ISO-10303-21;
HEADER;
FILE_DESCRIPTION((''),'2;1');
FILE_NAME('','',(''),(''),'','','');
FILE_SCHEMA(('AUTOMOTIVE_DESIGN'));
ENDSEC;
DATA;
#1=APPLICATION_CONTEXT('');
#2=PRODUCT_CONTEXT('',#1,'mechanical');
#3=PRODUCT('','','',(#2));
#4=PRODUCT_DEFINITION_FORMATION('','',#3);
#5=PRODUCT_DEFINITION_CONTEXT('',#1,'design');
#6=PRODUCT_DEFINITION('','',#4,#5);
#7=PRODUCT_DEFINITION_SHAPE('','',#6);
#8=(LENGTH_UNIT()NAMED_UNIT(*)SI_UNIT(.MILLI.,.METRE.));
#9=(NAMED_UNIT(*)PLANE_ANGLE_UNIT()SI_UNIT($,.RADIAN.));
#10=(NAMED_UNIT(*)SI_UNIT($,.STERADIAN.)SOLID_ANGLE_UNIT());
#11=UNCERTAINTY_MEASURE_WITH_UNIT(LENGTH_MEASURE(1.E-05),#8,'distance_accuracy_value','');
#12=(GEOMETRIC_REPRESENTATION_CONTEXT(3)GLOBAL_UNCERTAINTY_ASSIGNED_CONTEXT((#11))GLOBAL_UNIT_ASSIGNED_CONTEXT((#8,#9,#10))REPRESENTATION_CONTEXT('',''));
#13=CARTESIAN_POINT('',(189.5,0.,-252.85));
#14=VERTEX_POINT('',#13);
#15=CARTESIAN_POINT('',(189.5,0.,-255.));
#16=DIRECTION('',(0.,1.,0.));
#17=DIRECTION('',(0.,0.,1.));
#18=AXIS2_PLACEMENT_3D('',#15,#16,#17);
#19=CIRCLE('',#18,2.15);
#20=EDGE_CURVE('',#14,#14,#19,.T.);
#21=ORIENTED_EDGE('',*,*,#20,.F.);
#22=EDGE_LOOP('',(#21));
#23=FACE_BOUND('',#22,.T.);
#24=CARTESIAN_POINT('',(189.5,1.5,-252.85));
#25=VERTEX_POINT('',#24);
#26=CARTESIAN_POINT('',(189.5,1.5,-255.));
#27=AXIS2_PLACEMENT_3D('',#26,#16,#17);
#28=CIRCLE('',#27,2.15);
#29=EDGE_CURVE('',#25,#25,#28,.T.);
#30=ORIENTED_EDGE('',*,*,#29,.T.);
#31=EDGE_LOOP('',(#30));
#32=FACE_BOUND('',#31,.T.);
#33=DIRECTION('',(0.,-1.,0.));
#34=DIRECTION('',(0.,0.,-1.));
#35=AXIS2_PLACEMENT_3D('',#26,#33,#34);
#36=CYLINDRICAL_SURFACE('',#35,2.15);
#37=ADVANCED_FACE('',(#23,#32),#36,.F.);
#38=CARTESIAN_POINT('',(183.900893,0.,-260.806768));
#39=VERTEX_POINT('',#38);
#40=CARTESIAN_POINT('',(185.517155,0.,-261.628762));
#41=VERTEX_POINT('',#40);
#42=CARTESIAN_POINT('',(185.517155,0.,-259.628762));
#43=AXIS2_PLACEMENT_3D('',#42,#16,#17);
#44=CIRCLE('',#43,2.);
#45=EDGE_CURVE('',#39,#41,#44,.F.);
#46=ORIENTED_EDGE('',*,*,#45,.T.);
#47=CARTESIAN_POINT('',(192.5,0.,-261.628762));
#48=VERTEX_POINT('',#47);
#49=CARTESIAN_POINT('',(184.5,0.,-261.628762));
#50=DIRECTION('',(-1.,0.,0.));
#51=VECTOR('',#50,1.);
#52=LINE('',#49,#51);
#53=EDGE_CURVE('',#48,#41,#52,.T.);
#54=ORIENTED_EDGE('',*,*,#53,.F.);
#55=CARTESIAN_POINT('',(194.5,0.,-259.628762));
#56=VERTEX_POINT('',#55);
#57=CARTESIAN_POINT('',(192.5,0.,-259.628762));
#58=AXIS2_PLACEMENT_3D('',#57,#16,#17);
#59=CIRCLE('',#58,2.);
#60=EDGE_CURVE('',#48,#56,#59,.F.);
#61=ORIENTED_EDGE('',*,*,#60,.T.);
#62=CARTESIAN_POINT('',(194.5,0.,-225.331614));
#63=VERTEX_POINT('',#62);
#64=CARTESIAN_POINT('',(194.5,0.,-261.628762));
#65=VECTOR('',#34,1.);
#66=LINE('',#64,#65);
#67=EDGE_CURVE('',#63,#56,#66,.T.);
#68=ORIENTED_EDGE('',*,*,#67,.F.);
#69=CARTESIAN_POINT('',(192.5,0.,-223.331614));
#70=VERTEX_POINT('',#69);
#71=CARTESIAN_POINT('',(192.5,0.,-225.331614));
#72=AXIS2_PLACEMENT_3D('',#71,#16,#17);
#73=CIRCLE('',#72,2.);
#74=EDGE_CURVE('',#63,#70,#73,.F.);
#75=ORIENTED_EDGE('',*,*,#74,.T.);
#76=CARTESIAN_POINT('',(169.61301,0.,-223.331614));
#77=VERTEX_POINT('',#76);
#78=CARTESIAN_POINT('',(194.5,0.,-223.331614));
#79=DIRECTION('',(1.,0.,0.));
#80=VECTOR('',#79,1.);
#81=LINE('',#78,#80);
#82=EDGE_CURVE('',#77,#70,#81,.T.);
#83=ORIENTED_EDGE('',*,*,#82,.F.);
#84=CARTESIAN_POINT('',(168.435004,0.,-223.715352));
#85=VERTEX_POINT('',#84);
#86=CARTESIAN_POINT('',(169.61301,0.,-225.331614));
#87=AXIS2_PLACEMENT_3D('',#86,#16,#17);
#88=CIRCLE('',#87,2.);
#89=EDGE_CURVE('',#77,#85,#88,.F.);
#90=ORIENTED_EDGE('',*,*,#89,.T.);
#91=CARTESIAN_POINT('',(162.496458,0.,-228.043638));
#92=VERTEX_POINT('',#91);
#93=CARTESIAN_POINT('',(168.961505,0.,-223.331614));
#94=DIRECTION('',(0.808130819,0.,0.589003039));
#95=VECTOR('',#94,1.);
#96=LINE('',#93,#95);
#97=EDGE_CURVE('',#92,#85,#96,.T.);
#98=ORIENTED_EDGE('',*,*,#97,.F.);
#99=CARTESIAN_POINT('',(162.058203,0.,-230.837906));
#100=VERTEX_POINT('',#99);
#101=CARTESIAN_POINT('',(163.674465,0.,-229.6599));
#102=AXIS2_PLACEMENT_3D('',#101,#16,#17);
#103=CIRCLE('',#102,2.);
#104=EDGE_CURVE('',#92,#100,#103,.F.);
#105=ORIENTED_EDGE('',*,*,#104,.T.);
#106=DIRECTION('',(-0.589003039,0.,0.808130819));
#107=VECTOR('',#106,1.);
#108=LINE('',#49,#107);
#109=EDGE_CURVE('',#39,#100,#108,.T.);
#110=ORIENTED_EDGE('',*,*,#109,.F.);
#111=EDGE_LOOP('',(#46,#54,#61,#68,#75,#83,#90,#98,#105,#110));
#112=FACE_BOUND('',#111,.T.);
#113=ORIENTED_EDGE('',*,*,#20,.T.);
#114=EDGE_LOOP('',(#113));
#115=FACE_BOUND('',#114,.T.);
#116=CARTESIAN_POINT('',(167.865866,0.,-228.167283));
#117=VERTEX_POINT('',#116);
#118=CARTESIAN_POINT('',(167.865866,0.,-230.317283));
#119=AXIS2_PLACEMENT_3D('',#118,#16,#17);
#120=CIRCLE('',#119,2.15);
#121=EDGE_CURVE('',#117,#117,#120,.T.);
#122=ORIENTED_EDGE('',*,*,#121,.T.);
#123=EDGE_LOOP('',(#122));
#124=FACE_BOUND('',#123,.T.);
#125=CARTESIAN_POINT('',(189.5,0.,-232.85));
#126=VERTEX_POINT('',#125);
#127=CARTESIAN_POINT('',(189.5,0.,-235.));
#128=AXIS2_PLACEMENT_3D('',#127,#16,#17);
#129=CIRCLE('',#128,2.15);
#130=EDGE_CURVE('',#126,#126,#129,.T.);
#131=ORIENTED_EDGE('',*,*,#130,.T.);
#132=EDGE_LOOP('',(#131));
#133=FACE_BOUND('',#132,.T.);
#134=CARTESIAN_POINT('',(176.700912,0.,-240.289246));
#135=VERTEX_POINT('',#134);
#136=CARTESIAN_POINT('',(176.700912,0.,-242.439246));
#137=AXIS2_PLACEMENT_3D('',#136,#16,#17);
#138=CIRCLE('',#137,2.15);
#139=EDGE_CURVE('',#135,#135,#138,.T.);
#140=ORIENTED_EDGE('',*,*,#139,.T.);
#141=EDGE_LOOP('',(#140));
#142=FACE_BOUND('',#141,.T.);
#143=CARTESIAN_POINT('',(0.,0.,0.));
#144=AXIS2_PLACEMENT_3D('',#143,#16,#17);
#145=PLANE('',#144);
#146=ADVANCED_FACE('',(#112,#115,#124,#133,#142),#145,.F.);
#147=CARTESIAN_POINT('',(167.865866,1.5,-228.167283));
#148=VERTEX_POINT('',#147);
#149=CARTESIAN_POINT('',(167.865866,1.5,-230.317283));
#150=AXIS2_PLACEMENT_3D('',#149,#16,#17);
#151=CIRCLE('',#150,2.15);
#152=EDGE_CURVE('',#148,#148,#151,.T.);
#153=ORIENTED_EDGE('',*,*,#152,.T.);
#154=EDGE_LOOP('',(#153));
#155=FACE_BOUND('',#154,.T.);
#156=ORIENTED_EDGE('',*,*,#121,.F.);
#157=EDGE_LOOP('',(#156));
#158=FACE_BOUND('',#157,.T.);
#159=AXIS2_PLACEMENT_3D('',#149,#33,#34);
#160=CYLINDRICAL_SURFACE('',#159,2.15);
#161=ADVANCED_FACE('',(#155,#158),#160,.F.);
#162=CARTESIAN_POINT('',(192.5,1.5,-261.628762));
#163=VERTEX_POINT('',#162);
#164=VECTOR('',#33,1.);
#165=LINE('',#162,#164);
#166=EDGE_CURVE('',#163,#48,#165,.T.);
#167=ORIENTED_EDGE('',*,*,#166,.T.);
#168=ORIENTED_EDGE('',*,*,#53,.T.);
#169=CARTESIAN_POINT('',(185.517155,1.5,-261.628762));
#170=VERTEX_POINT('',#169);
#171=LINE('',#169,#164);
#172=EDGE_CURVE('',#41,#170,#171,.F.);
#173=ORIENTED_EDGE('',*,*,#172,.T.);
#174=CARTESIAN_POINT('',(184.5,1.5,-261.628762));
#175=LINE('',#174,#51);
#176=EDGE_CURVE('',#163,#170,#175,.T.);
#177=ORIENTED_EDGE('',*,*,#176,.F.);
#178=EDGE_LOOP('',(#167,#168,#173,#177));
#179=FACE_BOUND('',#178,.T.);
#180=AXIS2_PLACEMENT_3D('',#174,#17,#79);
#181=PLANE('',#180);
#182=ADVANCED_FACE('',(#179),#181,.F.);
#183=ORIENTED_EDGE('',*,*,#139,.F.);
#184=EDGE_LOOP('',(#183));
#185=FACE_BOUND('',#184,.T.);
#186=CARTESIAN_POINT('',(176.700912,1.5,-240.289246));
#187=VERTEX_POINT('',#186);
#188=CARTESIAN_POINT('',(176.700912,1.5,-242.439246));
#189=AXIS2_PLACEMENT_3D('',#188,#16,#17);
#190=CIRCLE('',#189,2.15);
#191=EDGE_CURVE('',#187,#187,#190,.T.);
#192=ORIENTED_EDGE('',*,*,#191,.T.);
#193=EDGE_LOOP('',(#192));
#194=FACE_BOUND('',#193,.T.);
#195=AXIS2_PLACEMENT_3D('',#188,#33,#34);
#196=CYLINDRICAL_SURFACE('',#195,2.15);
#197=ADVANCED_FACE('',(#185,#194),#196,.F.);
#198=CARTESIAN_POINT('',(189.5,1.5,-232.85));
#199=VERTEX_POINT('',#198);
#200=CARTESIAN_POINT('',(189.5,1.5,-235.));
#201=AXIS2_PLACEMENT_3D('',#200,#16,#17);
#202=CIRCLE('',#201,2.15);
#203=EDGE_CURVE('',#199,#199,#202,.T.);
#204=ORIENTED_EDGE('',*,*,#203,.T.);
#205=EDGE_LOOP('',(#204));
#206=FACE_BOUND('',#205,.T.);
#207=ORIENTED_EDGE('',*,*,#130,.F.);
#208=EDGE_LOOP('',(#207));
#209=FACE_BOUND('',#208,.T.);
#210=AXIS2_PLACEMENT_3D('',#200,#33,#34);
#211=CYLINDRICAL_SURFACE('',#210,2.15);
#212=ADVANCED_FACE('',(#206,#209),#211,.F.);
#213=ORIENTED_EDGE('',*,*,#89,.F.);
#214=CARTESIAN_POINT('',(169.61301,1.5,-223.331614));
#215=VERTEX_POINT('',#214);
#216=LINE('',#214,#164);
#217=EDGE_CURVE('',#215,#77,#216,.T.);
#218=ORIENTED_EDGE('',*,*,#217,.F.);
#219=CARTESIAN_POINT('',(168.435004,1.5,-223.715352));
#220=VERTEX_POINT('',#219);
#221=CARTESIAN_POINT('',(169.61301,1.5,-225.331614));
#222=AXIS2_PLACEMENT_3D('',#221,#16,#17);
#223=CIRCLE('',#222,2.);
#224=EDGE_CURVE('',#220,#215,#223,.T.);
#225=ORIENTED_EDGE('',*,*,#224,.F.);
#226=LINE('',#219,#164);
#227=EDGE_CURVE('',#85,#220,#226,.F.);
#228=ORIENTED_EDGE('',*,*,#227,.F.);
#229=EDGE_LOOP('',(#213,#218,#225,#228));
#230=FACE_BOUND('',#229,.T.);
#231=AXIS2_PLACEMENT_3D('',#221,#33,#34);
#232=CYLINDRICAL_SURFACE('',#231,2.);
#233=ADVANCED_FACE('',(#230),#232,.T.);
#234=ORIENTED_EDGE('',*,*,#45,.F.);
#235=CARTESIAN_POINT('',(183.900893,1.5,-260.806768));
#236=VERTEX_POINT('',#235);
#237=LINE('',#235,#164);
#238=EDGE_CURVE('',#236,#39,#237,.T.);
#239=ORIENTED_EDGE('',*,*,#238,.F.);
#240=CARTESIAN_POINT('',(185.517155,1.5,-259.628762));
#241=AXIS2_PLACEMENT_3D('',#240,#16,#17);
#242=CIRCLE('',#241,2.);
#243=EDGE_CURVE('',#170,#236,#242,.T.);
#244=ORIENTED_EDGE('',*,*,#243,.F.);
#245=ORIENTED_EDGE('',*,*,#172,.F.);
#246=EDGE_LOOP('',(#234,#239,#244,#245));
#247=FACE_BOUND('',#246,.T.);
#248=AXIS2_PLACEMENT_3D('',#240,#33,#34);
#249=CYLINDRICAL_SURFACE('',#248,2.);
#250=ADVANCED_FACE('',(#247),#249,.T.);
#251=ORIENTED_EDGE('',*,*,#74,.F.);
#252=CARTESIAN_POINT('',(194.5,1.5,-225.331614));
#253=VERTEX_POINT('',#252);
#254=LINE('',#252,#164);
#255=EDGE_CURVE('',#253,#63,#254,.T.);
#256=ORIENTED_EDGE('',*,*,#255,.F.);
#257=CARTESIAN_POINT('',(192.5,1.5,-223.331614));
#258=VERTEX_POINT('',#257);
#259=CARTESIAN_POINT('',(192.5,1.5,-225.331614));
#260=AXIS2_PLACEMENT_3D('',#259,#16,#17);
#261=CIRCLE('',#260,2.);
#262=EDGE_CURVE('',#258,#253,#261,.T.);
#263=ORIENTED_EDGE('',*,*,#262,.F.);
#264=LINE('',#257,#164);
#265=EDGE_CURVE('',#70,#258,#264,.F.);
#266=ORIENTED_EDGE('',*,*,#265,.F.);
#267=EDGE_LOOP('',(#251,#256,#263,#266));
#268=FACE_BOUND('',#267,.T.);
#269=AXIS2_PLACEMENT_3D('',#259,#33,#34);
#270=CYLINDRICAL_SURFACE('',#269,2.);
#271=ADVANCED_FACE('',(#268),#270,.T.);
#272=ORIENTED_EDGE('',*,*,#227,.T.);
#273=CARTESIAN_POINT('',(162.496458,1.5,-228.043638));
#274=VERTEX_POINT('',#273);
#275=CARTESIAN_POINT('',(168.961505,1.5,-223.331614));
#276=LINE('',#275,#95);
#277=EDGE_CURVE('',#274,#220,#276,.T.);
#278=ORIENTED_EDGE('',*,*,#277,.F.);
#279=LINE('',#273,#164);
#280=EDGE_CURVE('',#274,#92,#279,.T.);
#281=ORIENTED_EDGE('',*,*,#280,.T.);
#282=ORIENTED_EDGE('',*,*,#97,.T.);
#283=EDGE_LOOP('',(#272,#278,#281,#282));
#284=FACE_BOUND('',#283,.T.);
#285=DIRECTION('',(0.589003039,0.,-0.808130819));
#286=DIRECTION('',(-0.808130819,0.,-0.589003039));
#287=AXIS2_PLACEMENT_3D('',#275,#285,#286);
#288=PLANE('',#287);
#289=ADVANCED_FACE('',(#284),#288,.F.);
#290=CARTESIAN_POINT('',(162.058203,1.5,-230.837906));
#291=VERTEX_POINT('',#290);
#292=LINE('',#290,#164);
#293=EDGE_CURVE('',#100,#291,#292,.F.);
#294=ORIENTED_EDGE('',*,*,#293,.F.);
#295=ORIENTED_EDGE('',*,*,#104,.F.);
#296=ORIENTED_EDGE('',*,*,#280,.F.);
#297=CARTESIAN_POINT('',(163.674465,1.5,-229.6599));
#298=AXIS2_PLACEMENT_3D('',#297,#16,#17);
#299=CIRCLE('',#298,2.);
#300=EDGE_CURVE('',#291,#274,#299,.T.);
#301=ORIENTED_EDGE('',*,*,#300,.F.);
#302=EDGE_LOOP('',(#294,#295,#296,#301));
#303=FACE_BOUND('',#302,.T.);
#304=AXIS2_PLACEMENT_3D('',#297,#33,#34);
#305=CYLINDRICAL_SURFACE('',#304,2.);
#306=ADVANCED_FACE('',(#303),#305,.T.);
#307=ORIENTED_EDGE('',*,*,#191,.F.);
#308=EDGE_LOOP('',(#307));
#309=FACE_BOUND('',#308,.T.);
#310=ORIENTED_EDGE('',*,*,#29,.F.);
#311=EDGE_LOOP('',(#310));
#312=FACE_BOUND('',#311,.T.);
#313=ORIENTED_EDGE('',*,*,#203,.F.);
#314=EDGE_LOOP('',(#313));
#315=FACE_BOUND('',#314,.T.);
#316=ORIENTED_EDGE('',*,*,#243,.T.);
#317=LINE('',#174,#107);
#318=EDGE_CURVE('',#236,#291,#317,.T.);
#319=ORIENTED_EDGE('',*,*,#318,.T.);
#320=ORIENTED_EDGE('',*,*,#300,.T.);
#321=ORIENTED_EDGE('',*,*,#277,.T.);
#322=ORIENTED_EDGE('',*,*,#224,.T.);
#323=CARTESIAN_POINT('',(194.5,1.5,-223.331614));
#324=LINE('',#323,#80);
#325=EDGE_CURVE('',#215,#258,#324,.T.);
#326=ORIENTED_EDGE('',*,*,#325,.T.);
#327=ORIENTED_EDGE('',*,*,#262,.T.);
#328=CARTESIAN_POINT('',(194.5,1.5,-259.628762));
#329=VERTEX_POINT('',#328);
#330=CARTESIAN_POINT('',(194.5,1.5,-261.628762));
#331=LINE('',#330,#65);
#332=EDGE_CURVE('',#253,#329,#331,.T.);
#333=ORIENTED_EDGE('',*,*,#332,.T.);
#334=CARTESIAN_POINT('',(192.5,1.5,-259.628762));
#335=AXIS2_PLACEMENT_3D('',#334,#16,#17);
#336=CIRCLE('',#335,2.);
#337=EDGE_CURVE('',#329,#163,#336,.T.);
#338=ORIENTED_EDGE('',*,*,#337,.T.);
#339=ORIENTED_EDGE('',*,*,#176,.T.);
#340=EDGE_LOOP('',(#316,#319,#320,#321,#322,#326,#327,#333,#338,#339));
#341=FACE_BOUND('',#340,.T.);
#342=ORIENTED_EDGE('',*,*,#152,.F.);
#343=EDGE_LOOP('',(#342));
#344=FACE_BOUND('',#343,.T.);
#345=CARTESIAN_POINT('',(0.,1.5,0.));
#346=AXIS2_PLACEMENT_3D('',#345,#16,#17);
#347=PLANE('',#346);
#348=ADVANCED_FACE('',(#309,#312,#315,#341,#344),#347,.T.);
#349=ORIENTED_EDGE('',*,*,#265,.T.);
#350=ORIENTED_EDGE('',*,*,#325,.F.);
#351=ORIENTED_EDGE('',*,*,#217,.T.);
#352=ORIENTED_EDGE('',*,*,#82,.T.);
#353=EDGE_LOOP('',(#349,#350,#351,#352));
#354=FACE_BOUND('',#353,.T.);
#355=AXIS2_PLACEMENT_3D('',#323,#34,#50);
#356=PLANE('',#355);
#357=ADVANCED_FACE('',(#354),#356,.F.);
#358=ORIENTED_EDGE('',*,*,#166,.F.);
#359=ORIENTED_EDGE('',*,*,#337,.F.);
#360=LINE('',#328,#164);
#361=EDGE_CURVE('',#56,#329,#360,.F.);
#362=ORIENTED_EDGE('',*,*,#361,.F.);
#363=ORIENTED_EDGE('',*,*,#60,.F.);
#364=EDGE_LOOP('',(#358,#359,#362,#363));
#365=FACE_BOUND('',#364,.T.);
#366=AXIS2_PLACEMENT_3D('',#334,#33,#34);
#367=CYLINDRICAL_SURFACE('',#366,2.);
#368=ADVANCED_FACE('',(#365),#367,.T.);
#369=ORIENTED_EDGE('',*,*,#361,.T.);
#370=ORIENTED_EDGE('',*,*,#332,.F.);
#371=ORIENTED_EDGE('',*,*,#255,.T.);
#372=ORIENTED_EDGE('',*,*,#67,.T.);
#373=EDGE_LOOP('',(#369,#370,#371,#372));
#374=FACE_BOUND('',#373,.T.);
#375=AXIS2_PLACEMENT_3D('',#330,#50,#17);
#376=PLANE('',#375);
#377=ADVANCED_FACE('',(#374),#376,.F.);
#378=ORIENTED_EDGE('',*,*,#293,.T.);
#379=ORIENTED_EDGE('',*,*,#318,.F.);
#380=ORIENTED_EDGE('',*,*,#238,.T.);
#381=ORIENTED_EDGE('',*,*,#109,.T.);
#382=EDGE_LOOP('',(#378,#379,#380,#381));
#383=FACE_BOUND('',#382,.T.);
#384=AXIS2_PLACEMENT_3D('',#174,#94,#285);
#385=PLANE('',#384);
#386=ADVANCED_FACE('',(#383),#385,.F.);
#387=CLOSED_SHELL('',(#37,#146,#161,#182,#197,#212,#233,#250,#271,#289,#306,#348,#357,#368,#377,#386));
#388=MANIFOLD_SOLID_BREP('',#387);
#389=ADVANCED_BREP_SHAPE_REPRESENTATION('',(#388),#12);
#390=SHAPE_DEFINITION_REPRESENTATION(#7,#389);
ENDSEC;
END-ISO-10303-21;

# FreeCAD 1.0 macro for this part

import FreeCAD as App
import Part
import Sketcher


def edges_at(feature, points):
    """Names of the edges that pass closest to the given points."""
    edges = feature.Shape.Edges
    near = lambda p: min(range(len(edges)), key=lambda i: edges[i].distToShape(Part.Vertex(*p))[0])
    return sorted({f"Edge{near(p) + 1}" for p in points})


def add_polygon(sketch, points):
    """Adds a closed chain of lines whose ends are joined by coincident constraints."""
    first, n = sketch.GeometryCount, len(points)
    for a, b in zip(points, points[1:] + points[:1]):
        sketch.addGeometry(Part.LineSegment(App.Vector(*a, 0), App.Vector(*b, 0)), False)
    for i in range(n):
        sketch.addConstraint(Sketcher.Constraint("Coincident", first + i, 2, first + (i + 1) % n, 1))

doc = App.newDocument("Part")
body = doc.addObject("PartDesign::Body", "Body")

sketch1 = doc.addObject("Sketcher::SketchObject", "Sketch")
body.addObject(sketch1)
sketch1.AttachmentSupport = (doc.XZ_Plane, [""])
sketch1.MapMode = "FlatFace"
add_polygon(sketch1, [(160.880197, -229.221644), (168.961505, -223.331614), (194.5, -223.331614), (194.5, -261.628762), (184.5, -261.628762)])
sketch1.addGeometry(Part.Circle(App.Vector(189.5, -235, 0), App.Vector(0, 0, 1), 2.15), False)
sketch1.addGeometry(Part.Circle(App.Vector(167.865866, -230.317283, 0), App.Vector(0, 0, 1), 2.15), False)
sketch1.addGeometry(Part.Circle(App.Vector(176.700912, -242.439246, 0), App.Vector(0, 0, 1), 2.15), False)
sketch1.addGeometry(Part.Circle(App.Vector(189.5, -255, 0), App.Vector(0, 0, 1), 2.15), False)
sketch1.addConstraint([
    Sketcher.Constraint("Horizontal", 1),
    Sketcher.Constraint("Vertical", 2),
    Sketcher.Constraint("Horizontal", 3),
    Sketcher.Constraint("Equal", 5, 6),
    Sketcher.Constraint("Equal", 6, 7),
    Sketcher.Constraint("Equal", 7, 8),
    Sketcher.Constraint("Perpendicular", 0, 4),
    Sketcher.Constraint("Vertical", 5, 3, 8, 3),
    Sketcher.Constraint("Diameter", 5, 4.3),
    Sketcher.Constraint("DistanceX", 3, 2, 3, 1, 10.0),
    Sketcher.Constraint("Distance", 0, 10.0),
    Sketcher.Constraint("DistanceY", 5, 3, -1, 1, 235.0),
    Sketcher.Constraint("DistanceY", 8, 3, -1, 1, 255.0),
    Sketcher.Constraint("DistanceX", 5, 3, 1, 2, 5.0),
    Sketcher.Constraint("DistanceX", -1, 1, 5, 3, 189.5),
    Sketcher.Constraint("DistanceY", 2, 2, 2, 1, 38.297148),
    Sketcher.Constraint("DistanceY", 7, 3, 4, 2, 13.217601),
    Sketcher.Constraint("DistanceX", 1, 1, 1, 2, 25.538495),
    Sketcher.Constraint("DistanceX", -1, 1, 7, 3, 176.700912),
    Sketcher.Constraint("DistanceX", 6, 3, 0, 2, 1.095639),
    Sketcher.Constraint("DistanceY", 6, 3, 0, 2, 6.985669),
    Sketcher.Constraint("DistanceY", 6, 3, -1, 1, 230.317283),
])
pad1 = doc.addObject("PartDesign::Pad", "Pad")
body.addObject(pad1)
pad1.Profile = sketch1
pad1.Length = 1.5
pad1.Reversed = True
doc.recompute()

fillet = doc.addObject("PartDesign::Fillet", "Fillet")
body.addObject(fillet)
fillet.Base = (pad1, edges_at(pad1, [
    (168.962, 0.75, -223.332),
    (160.88, 0.75, -229.222),
    (184.5, 0.75, -261.629),
    (194.5, 0.75, -261.629),
    (194.5, 0.75, -223.332),
]))
fillet.Radius = 2

doc.recompute()
